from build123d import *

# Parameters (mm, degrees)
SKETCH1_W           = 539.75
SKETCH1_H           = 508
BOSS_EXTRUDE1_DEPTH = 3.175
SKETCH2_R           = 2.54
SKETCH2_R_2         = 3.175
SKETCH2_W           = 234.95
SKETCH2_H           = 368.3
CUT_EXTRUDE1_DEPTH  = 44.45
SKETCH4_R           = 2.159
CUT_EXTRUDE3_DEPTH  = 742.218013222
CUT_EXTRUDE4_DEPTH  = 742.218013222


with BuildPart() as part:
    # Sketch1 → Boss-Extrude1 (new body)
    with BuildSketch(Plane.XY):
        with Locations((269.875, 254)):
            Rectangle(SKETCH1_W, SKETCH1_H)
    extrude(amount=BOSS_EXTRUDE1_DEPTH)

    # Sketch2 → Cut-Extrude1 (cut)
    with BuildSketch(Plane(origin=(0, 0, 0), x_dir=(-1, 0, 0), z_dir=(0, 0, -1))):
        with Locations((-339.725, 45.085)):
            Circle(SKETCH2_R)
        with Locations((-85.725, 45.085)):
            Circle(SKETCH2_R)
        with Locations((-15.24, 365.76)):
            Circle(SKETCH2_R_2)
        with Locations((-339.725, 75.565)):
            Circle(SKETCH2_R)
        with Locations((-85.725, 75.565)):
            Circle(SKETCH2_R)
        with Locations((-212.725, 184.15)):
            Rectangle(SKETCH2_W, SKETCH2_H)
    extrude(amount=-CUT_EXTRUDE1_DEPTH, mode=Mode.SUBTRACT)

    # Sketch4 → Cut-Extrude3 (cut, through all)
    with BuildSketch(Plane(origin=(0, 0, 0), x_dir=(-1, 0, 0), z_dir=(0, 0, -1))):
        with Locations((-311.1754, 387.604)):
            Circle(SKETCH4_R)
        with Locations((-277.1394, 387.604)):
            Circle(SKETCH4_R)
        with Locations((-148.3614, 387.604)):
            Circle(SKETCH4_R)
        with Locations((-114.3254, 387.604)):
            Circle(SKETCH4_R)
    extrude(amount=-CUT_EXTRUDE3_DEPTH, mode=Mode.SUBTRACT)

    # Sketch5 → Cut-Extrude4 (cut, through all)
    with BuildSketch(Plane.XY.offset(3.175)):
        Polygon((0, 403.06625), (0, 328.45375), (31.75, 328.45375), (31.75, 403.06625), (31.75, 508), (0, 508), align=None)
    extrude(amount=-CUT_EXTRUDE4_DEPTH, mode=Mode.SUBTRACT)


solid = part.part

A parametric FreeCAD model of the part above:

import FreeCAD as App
import Part
import Sketcher

V = App.Vector
Q = App.Units.Quantity

doc = App.newDocument("Part")
body = doc.addObject("PartDesign::Body", "Body")

# Sketch on XY plane
sketch1 = doc.addObject("Sketcher::SketchObject", "Sketch")
body.addObject(sketch1)
sketch1.AttachmentSupport = (doc.XY_Plane, [""])
sketch1.MapMode = "FlatFace"
sketch1.addGeometry([
    Part.LineSegment(V(0, 508, 0), V(0, 0, 0)),
    Part.LineSegment(V(0, 0, 0), V(540, 0, 0)),
    Part.LineSegment(V(540, 0, 0), V(540, 508, 0)),
    Part.LineSegment(V(540, 508, 0), V(0, 508, 0)),
], False)
sketch1.addConstraint([
    Sketcher.Constraint("Coincident", 0, 2, 1, 1),
    Sketcher.Constraint("Coincident", 1, 2, 2, 1),
    Sketcher.Constraint("Coincident", 2, 2, 3, 1),
    Sketcher.Constraint("Coincident", 3, 2, 0, 1),
    Sketcher.Constraint("Vertical", 0),
    Sketcher.Constraint("Horizontal", 1),
    Sketcher.Constraint("Vertical", 2),
    Sketcher.Constraint("Horizontal", 3),
    Sketcher.Constraint("Coincident", 0, 2, -1, 1),
    Sketcher.Constraint("DistanceY", 0, 2, 0, 1, Q("20 in")),
    Sketcher.Constraint("DistanceX", 1, 1, 1, 2, Q("21.25 in")),
])
pad1 = doc.addObject("PartDesign::Pad", "Pad")
body.addObject(pad1)
pad1.Profile = sketch1
pad1.Length = Q("0.125 in")

# Sketch on XY plane
sketch2 = doc.addObject("Sketcher::SketchObject", "Sketch001")
body.addObject(sketch2)
sketch2.AttachmentSupport = (doc.XY_Plane, [""])
sketch2.MapMode = "FlatFace"
sketch2.addGeometry([
    Part.Circle(V(339.7, 45.1, 0), V(0, 0, 1), 2.5),  # 0
    Part.Circle(V(85.7, 45.1, 0), V(0, 0, 1), 2.5),  # 1
    Part.Circle(V(15.2, 365.8, 0), V(0, 0, 1), 3.2),  # 2
    Part.Circle(V(339.7, 75.6, 0), V(0, 0, 1), 2.5),  # 3
    Part.Circle(V(85.7, 75.6, 0), V(0, 0, 1), 2.5),  # 4
    Part.LineSegment(V(330.2, 368.3, 0), V(330.2, 0, 0)),  # 5
    Part.LineSegment(V(330.2, 0, 0), V(95.2, 0, 0)),  # 6
    Part.LineSegment(V(95.2, 0, 0), V(95.2, 368.3, 0)),  # 7
    Part.LineSegment(V(95.2, 368.3, 0), V(330.2, 368.3, 0)),  # 8
], False)
sketch2.addConstraint([
    Sketcher.Constraint("Coincident", 5, 2, 6, 1),
    Sketcher.Constraint("Coincident", 6, 2, 7, 1),
    Sketcher.Constraint("Coincident", 7, 2, 8, 1),
    Sketcher.Constraint("Coincident", 8, 2, 5, 1),
    Sketcher.Constraint("Vertical", 5),
    Sketcher.Constraint("Horizontal", 6),
    Sketcher.Constraint("Vertical", 7),
    Sketcher.Constraint("Horizontal", 8),
    Sketcher.Constraint("Equal", 0, 1),
    Sketcher.Constraint("Equal", 1, 3),
    Sketcher.Constraint("Equal", 3, 4),
    Sketcher.Constraint("PointOnObject", 5, 2, -1),
    Sketcher.Constraint("Horizontal", 0, 3, 1, 3),
    Sketcher.Constraint("Horizontal", 3, 3, 4, 3),
    Sketcher.Constraint("Vertical", 0, 3, 3, 3),
    Sketcher.Constraint("Vertical", 1, 3, 4, 3),
    Sketcher.Constraint("Diameter", 0, Q("0.2 in")),
    Sketcher.Constraint("Diameter", 2, Q("0.25 in")),
    Sketcher.Constraint("DistanceY", 5, 2, 5, 1, Q("14.5 in")),
    Sketcher.Constraint("DistanceX", -1, 1, 5, 2, Q("13 in")),
    Sketcher.Constraint("DistanceX", 1, 3, 0, 3, Q("10 in")),
    Sketcher.Constraint("DistanceX", 6, 2, 6, 1, Q("9.25 in")),
    Sketcher.Constraint("DistanceX", -1, 1, 2, 3, Q("0.6 in")),
    Sketcher.Constraint("DistanceY", -1, 1, 2, 3, Q("14.4 in")),
    Sketcher.Constraint("DistanceY", 0, 3, 3, 3, Q("1.2 in")),
    Sketcher.Constraint("DistanceX", -1, 1, 0, 3, Q("13.375 in")),
    Sketcher.Constraint("DistanceY", -1, 1, 0, 3, Q("1.775 in")),
])
pocket1 = doc.addObject("PartDesign::Pocket", "Pocket")
body.addObject(pocket1)
pocket1.Profile = sketch2
pocket1.Length = Q("1.75 in")
pocket1.Reversed = True

# Sketch on XY plane
sketch3 = doc.addObject("Sketcher::SketchObject", "Sketch002")
body.addObject(sketch3)
sketch3.AttachmentSupport = (doc.XY_Plane, [""])
sketch3.MapMode = "FlatFace"
sketch3.addGeometry([
    Part.Circle(V(311.2, 387.6, 0), V(0, 0, 1), 2.2),
    Part.Circle(V(277.1, 387.6, 0), V(0, 0, 1), 2.2),
    Part.Circle(V(148.4, 387.6, 0), V(0, 0, 1), 2.2),
    Part.Circle(V(114.3, 387.6, 0), V(0, 0, 1), 2.2),
], False)
sketch3.addConstraint([
    Sketcher.Constraint("Equal", 0, 1),
    Sketcher.Constraint("Equal", 1, 2),
    Sketcher.Constraint("Equal", 2, 3),
    Sketcher.Constraint("Horizontal", 0, 3, 1, 3),
    Sketcher.Constraint("Horizontal", 1, 3, 2, 3),
    Sketcher.Constraint("Horizontal", 2, 3, 3, 3),
    Sketcher.Constraint("Diameter", 0, Q("0.17 in")),
    Sketcher.Constraint("DistanceY", -1, 1, 0, 3, Q("15.26 in")),
    Sketcher.Constraint("DistanceX", 1, 3, 0, 3, Q("1.34 in")),
    Sketcher.Constraint("DistanceX", 2, 3, 1, 3, Q("5.07 in")),
    Sketcher.Constraint("DistanceX", 3, 3, 2, 3, Q("1.34 in")),
    Sketcher.Constraint("DistanceX", -1, 1, 0, 3, Q("12.251 in")),
])
pocket2 = doc.addObject("PartDesign::Pocket", "Pocket001")
body.addObject(pocket2)
pocket2.Profile = sketch3
pocket2.Type = "ThroughAll"
pocket2.Reversed = True

# Sketch on XY plane
sketch4 = doc.addObject("Sketcher::SketchObject", "Sketch003")
body.addObject(sketch4)
sketch4.AttachmentSupport = (doc.XY_Plane, [""])
sketch4.MapMode = "FlatFace"
sketch4.AttachmentOffset = App.Placement(V(0, 0, 0.125 * 25.4), App.Rotation())
sketch4.addGeometry([
    Part.LineSegment(V(0, 328, 0), V(32, 328, 0)),
    Part.LineSegment(V(32, 328, 0), V(32, 508, 0)),
    Part.LineSegment(V(32, 508, 0), V(0, 508, 0)),
    Part.LineSegment(V(0, 508, 0), V(0, 328, 0)),
], False)
sketch4.addConstraint([
    Sketcher.Constraint("Coincident", 0, 2, 1, 1),
    Sketcher.Constraint("Coincident", 1, 2, 2, 1),
    Sketcher.Constraint("Coincident", 2, 2, 3, 1),
    Sketcher.Constraint("Coincident", 3, 2, 0, 1),
    Sketcher.Constraint("Horizontal", 0),
    Sketcher.Constraint("Vertical", 1),
    Sketcher.Constraint("Horizontal", 2),
    Sketcher.Constraint("Vertical", 3),
    Sketcher.Constraint("PointOnObject", 2, 2, -2),
    Sketcher.Constraint("DistanceY", -1, 1, 1, 2, Q("20 in")),
    Sketcher.Constraint("DistanceX", 0, 1, 0, 2, Q("1.25 in")),
    Sketcher.Constraint("DistanceY", 1, 1, 1, 2, 179.54625),
])
pocket3 = doc.addObject("PartDesign::Pocket", "Pocket002")
body.addObject(pocket3)
pocket3.Profile = sketch4
pocket3.Type = "ThroughAll"

doc.recompute()
